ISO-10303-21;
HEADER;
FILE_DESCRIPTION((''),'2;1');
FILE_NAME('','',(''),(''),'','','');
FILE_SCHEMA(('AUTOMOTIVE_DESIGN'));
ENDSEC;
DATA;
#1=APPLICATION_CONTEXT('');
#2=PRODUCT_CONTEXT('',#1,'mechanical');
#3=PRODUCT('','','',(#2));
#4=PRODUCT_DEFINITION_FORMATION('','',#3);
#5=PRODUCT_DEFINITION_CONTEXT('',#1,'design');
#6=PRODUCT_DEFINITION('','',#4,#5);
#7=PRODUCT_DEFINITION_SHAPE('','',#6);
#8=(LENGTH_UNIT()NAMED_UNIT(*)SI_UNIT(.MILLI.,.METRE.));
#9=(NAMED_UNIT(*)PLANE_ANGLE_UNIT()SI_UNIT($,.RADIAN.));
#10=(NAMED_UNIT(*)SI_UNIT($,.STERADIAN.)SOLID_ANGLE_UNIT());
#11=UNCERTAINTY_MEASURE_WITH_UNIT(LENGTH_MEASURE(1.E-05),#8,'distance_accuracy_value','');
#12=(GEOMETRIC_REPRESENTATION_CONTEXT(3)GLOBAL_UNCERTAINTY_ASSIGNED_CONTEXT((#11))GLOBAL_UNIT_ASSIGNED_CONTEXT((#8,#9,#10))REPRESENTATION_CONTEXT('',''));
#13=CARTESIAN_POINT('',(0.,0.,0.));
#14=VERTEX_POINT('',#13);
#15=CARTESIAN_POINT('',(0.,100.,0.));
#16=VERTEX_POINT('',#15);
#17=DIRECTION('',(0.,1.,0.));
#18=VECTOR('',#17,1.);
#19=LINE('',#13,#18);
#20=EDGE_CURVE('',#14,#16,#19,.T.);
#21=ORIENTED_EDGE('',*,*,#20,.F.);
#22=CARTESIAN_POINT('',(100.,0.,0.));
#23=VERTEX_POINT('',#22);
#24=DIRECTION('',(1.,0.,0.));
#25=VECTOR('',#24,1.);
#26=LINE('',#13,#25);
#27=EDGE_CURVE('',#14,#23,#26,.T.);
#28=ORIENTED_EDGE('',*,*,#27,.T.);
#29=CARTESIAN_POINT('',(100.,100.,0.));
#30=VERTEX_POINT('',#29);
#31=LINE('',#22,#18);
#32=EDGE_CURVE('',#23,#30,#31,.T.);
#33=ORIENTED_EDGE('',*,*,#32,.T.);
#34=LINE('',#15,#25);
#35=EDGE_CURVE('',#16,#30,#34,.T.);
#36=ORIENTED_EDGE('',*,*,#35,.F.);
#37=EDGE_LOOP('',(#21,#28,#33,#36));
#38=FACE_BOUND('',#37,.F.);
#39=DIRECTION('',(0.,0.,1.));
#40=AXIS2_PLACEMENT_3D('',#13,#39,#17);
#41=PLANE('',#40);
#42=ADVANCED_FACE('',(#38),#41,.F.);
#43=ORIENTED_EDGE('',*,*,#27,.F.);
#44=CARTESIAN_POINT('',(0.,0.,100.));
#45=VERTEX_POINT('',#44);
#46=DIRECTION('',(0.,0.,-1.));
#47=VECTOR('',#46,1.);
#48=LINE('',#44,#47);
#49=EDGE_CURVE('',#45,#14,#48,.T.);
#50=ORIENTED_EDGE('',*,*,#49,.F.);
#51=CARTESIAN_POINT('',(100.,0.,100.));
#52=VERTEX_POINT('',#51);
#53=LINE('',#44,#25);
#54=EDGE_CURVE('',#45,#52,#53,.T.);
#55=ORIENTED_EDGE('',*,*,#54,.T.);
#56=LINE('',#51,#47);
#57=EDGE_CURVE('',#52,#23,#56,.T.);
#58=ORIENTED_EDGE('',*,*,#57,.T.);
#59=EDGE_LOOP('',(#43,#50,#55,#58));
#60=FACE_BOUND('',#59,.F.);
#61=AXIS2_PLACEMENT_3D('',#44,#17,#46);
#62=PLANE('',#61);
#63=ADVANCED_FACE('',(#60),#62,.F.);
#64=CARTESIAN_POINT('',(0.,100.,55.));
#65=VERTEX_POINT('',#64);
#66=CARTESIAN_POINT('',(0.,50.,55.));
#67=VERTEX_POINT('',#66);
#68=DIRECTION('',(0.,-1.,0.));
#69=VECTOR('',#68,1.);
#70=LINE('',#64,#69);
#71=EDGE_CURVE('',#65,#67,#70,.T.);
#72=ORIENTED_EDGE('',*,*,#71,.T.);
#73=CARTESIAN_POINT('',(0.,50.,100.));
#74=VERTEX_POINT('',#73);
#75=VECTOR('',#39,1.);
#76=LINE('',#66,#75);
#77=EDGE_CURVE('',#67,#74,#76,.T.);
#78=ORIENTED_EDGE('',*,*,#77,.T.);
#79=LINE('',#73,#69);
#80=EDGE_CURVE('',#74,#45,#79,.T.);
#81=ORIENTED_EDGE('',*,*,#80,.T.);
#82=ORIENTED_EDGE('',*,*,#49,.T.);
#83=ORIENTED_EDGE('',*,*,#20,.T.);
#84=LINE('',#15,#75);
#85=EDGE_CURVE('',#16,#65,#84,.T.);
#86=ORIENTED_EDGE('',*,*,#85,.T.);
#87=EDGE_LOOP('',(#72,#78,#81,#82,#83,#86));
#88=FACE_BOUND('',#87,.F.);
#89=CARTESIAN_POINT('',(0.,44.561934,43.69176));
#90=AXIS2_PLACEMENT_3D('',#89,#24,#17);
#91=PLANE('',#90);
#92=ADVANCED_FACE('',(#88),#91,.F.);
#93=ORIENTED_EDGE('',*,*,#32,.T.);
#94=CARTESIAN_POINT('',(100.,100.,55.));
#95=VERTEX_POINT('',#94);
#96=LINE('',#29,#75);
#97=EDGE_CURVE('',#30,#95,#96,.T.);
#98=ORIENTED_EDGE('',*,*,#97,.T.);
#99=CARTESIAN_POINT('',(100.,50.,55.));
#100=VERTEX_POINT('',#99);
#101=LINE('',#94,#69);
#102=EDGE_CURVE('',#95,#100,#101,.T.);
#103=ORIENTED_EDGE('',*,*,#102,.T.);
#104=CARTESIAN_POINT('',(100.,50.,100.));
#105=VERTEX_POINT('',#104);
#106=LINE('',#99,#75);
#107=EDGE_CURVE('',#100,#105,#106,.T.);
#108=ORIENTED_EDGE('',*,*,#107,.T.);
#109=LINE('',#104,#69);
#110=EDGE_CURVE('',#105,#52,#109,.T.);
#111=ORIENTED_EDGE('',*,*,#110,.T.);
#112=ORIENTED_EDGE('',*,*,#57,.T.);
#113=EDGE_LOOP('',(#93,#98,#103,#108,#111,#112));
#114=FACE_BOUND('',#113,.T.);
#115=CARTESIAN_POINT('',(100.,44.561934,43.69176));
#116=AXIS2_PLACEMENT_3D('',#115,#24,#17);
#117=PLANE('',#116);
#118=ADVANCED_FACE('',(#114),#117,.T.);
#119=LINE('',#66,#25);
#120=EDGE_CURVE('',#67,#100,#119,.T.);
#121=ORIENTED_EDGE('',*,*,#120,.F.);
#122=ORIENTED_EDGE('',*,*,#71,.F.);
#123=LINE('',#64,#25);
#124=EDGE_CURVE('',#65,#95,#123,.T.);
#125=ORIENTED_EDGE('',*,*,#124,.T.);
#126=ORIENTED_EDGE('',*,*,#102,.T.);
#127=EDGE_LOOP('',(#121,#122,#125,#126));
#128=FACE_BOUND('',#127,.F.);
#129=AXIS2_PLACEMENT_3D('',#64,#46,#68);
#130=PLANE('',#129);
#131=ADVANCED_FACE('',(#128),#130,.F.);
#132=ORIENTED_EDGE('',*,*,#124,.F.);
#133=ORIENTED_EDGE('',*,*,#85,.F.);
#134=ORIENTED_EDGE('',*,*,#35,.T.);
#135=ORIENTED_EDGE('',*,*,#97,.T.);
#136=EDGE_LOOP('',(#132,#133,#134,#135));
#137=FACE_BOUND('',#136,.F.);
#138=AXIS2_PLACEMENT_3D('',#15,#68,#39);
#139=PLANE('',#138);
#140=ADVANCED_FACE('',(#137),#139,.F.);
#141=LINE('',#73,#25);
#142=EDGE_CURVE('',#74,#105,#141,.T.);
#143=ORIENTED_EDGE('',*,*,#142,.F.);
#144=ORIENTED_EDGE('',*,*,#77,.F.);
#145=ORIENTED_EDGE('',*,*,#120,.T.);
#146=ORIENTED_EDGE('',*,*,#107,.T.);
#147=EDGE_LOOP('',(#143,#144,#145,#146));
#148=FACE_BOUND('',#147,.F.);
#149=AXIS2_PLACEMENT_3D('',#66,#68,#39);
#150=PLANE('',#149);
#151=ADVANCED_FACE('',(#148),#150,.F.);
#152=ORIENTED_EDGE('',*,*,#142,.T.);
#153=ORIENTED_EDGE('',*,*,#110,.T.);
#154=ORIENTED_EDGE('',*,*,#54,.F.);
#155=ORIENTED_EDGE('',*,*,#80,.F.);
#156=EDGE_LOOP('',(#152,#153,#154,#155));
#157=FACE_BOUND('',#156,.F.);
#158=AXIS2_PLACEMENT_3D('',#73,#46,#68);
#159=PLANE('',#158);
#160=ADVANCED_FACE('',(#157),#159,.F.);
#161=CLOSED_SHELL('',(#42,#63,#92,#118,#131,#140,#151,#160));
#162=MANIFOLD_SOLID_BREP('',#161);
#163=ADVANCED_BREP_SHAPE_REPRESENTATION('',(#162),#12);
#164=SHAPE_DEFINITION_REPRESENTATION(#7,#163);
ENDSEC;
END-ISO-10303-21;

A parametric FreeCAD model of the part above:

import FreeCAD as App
import Part
import Sketcher
from FreeCAD import Vector
Q = App.Units.Quantity


def add_polygon(sketch, points):
    """Adds a closed chain of lines whose ends are joined by coincident constraints."""
    first, n = sketch.GeometryCount, len(points)
    for a, b in zip(points, points[1:] + points[:1]):
        sketch.addGeometry(Part.LineSegment(App.Vector(*a, 0), App.Vector(*b, 0)), False)
    for i in range(n):
        sketch.addConstraint(Sketcher.Constraint("Coincident", first + i, 2, first + (i + 1) % n, 1))

doc = App.newDocument("Part")
params = doc.addObject("Spreadsheet::Sheet", "Params")
for row, (alias, value) in enumerate([
    ("sketch1_width", "50 mm"),
    ("sketch1_height", "55 mm"),
    ("pad1_length", "100 mm"),
], start=1):
    params.set(f"A{row}", alias)
    params.set(f"B{row}", "=" + value)
    params.setAlias(f"B{row}", alias)

body = doc.addObject("PartDesign::Body", "Body")

# Sketch on YZ plane
sketch1 = body.newObject("Sketcher::SketchObject", "Sketch")
sketch1.AttachmentSupport = (doc.getObject("YZ_Plane"), [""])
sketch1.MapMode = "FlatFace"
add_polygon(sketch1, [(50, 100), (0, 100), (0, 0), (100, 0), (100, 55), (50, 55)])  # lines 0-5
sketch1.addConstraint(Sketcher.Constraint("Horizontal", 0))
sketch1.addConstraint(Sketcher.Constraint("Vertical", 1))
sketch1.addConstraint(Sketcher.Constraint("Horizontal", 2))
sketch1.addConstraint(Sketcher.Constraint("Vertical", 3))
sketch1.addConstraint(Sketcher.Constraint("Horizontal", 4))
sketch1.addConstraint(Sketcher.Constraint("Vertical", 5))
sketch1.addConstraint(Sketcher.Constraint("Coincident", 1, 2, -1, 1))
sketch1.addConstraint(Sketcher.Constraint("Equal", 0, 4))
sketch1.addConstraint(Sketcher.Constraint("Equal", 2, 1))
sketch1.addConstraint(Sketcher.Constraint("DistanceX", 0, 2, 0, 1, Q("50 mm")))
sketch1.addConstraint(Sketcher.Constraint("DistanceY", 3, 1, 3, 2, Q("55 mm")))
sketch1.setExpression("Constraints[15]", "Params.sketch1_width")
sketch1.setExpression("Constraints[16]", "Params.sketch1_height")
pad1 = body.newObject("PartDesign::Pad", "Pad")
pad1.Profile = sketch1
pad1.setExpression("Length", "Params.pad1_length")

doc.recompute()
